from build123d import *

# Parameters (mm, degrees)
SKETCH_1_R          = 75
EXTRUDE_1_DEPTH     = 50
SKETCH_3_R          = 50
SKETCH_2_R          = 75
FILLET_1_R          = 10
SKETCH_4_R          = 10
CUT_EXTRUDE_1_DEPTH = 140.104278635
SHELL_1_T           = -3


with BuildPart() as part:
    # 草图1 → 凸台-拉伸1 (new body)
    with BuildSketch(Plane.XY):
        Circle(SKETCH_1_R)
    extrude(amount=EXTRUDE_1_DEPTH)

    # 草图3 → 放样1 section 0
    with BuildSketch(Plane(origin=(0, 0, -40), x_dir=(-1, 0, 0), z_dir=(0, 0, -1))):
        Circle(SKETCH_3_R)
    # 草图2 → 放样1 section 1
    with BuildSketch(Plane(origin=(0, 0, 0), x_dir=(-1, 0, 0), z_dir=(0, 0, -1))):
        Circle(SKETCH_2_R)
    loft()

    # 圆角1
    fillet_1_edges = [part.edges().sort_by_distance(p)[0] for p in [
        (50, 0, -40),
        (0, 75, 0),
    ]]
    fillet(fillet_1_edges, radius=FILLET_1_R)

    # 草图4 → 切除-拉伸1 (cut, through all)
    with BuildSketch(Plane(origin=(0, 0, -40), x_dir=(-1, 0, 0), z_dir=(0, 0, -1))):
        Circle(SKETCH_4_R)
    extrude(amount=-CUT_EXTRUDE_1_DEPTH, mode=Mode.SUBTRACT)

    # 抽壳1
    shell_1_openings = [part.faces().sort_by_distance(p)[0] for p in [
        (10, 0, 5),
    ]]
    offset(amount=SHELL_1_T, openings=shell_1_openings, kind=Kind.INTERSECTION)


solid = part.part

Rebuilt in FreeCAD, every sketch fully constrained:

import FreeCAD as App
import Part
import Sketcher

V = App.Vector


def edges_at(feature, points):
    """Names of the edges that pass closest to the given points."""
    edges = feature.Shape.Edges
    near = lambda p: min(range(len(edges)), key=lambda i: edges[i].distToShape(Part.Vertex(*p))[0])
    return sorted({f"Edge{near(p) + 1}" for p in points})


def faces_at(feature, points):
    """Names of the faces that lie closest to the given points."""
    faces = feature.Shape.Faces
    near = lambda p: min(range(len(faces)), key=lambda i: faces[i].distToShape(Part.Vertex(*p))[0])
    return sorted({f"Face{near(p) + 1}" for p in points})

doc = App.newDocument("Part")
body = doc.addObject("PartDesign::Body", "Body")

sketch1 = body.newObject("Sketcher::SketchObject", "Sketch")
sketch1.AttachmentSupport = (doc.getObject("XY_Plane"), [""])
sketch1.MapMode = "FlatFace"
sketch1.addGeometry(Part.Circle(V(0, 0, 0), V(0, 0, 1), 75), False)
sketch1.addConstraint(Sketcher.Constraint("Coincident", 0, 3, -1, 1))
sketch1.addConstraint(Sketcher.Constraint("Diameter", 0, 150.0))
pad1 = body.newObject("PartDesign::Pad", "Pad")
pad1.Profile = sketch1
pad1.Length = 50

sketch2 = body.newObject("Sketcher::SketchObject", "Sketch001")
sketch2.AttachmentSupport = (doc.getObject("XY_Plane"), [""])
sketch2.MapMode = "FlatFace"
sketch2.AttachmentOffset = App.Placement(V(0, 0, -40), App.Rotation())
sketch2.addGeometry(Part.Circle(V(0, 0, 0), V(0, 0, 1), 50), False)
sketch2.addConstraint(Sketcher.Constraint("Coincident", 0, 3, -1, 1))
sketch2.addConstraint(Sketcher.Constraint("Diameter", 0, 100.0))

sketch3 = body.newObject("Sketcher::SketchObject", "Sketch002")
sketch3.AttachmentSupport = (doc.getObject("XY_Plane"), [""])
sketch3.MapMode = "FlatFace"
sketch3.addGeometry(Part.Circle(V(0, 0, 0), V(0, 0, 1), 75), False)
sketch3.addConstraint(Sketcher.Constraint("Coincident", 0, 3, -1, 1))
sketch3.addConstraint(Sketcher.Constraint("Diameter", 0, 150.0))

additiveloft = body.newObject("PartDesign::AdditiveLoft", "AdditiveLoft")
additiveloft.Profile = sketch2
additiveloft.Sections = [sketch3]
doc.recompute()

fillet = body.newObject("PartDesign::Fillet", "Fillet")
fillet.Base = (additiveloft, edges_at(additiveloft, [(50, 0, -40), (0, 75, 0)]))
fillet.Radius = 10

sketch4 = body.newObject("Sketcher::SketchObject", "Sketch003")
sketch4.AttachmentSupport = (doc.getObject("XY_Plane"), [""])
sketch4.MapMode = "FlatFace"
sketch4.AttachmentOffset = App.Placement(V(0, 0, -40), App.Rotation())
sketch4.addGeometry(Part.Circle(V(0, 0, 0), V(0, 0, 1), 10), False)
sketch4.addConstraint(Sketcher.Constraint("Coincident", 0, 3, -1, 1))
sketch4.addConstraint(Sketcher.Constraint("Diameter", 0, 20.0))
pocket1 = body.newObject("PartDesign::Pocket", "Pocket")
pocket1.Profile = sketch4
pocket1.Type = "ThroughAll"
pocket1.Reversed = True
doc.recompute()

thickness = body.newObject("PartDesign::Thickness", "Thickness")
thickness.Base = (pocket1, faces_at(pocket1, [(10, 0, 5)]))
thickness.Value = 3
thickness.Reversed = True
thickness.Join = "Intersection"

doc.recompute()
